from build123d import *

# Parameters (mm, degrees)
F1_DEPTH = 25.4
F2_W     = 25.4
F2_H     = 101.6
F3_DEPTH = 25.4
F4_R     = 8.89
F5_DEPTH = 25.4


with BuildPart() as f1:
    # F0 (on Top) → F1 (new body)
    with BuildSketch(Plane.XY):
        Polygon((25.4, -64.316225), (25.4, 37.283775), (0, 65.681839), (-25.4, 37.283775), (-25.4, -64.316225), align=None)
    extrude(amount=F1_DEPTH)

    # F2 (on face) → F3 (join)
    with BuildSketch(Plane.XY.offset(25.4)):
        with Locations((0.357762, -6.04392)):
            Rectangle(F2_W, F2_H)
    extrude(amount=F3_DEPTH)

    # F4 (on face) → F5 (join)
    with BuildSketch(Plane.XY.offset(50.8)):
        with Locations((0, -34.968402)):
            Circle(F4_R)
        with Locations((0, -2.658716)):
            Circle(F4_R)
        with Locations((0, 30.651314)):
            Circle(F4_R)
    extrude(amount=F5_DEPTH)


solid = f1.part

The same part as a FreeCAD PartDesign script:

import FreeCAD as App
import Part
import Sketcher
Q = App.Units.Quantity

doc = App.newDocument("Part")
body = doc.addObject("PartDesign::Body", "Body")

sketch1 = body.newObject("Sketcher::SketchObject", "Sketch")
sketch1.AttachmentSupport = (doc.getObject("XY_Plane"), [""])
sketch1.MapMode = "FlatFace"
sketch1.addGeometry(Part.LineSegment(App.Vector(25, -64, 0), App.Vector(25, 37, 0)), False)
sketch1.addGeometry(Part.LineSegment(App.Vector(25, 37, 0), App.Vector(0, 66, 0)), False)
sketch1.addGeometry(Part.LineSegment(App.Vector(0, 66, 0), App.Vector(-25, 37, 0)), False)
sketch1.addGeometry(Part.LineSegment(App.Vector(-25, 37, 0), App.Vector(-25, -64, 0)), False)
sketch1.addGeometry(Part.LineSegment(App.Vector(-25, -64, 0), App.Vector(25, -64, 0)), False)
sketch1.addConstraint(Sketcher.Constraint("Coincident", 0, 2, 1, 1))
sketch1.addConstraint(Sketcher.Constraint("Coincident", 1, 2, 2, 1))
sketch1.addConstraint(Sketcher.Constraint("Coincident", 2, 2, 3, 1))
sketch1.addConstraint(Sketcher.Constraint("Coincident", 3, 2, 4, 1))
sketch1.addConstraint(Sketcher.Constraint("Coincident", 4, 2, 0, 1))
sketch1.addConstraint(Sketcher.Constraint("Vertical", 0))
sketch1.addConstraint(Sketcher.Constraint("Vertical", 3))
sketch1.addConstraint(Sketcher.Constraint("Horizontal", 4))
sketch1.addConstraint(Sketcher.Constraint("Symmetric", 0, 2, 2, 2, -2))
sketch1.addConstraint(Sketcher.Constraint("PointOnObject", 1, 2, -2))
sketch1.addConstraint(Sketcher.Constraint("DistanceX", 4, 1, 4, 2, Q("2 in")))
sketch1.addConstraint(Sketcher.Constraint("DistanceY", 0, 1, 0, 2, Q("4 in")))
sketch1.addConstraint(Sketcher.Constraint("Distance", 1, Q("1.5 in")))
sketch1.addConstraint(Sketcher.Constraint("DistanceY", -1, 1, 1, 2, Q("65.681839 mm")))
pad1 = body.newObject("PartDesign::Pad", "Pad")
pad1.Profile = sketch1
pad1.Length = Q("1 in")

sketch2 = body.newObject("Sketcher::SketchObject", "Sketch001")
sketch2.AttachmentSupport = (doc.getObject("XY_Plane"), [""])
sketch2.MapMode = "FlatFace"
sketch2.AttachmentOffset = App.Placement(App.Vector(0, 0, 1 * 25.4), App.Rotation())
sketch2.addGeometry(Part.LineSegment(App.Vector(-12, 45, 0), App.Vector(-12, -57, 0)), False)
sketch2.addGeometry(Part.LineSegment(App.Vector(-12, -57, 0), App.Vector(13, -57, 0)), False)
sketch2.addGeometry(Part.LineSegment(App.Vector(13, -57, 0), App.Vector(13, 45, 0)), False)
sketch2.addGeometry(Part.LineSegment(App.Vector(13, 45, 0), App.Vector(-12, 45, 0)), False)
sketch2.addConstraint(Sketcher.Constraint("Coincident", 0, 2, 1, 1))
sketch2.addConstraint(Sketcher.Constraint("Coincident", 1, 2, 2, 1))
sketch2.addConstraint(Sketcher.Constraint("Coincident", 2, 2, 3, 1))
sketch2.addConstraint(Sketcher.Constraint("Coincident", 3, 2, 0, 1))
sketch2.addConstraint(Sketcher.Constraint("Vertical", 0))
sketch2.addConstraint(Sketcher.Constraint("Horizontal", 1))
sketch2.addConstraint(Sketcher.Constraint("Vertical", 2))
sketch2.addConstraint(Sketcher.Constraint("Horizontal", 3))
sketch2.addConstraint(Sketcher.Constraint("DistanceX", 1, 1, 1, 2, Q("1 in")))
sketch2.addConstraint(Sketcher.Constraint("DistanceY", 0, 2, 0, 1, Q("4 in")))
sketch2.addConstraint(Sketcher.Constraint("DistanceY", 0, 2, -1, 1, Q("56.84392 mm")))
sketch2.addConstraint(Sketcher.Constraint("DistanceX", 0, 2, -1, 1, Q("12.342238 mm")))
pad2 = body.newObject("PartDesign::Pad", "Pad001")
pad2.Profile = sketch2
pad2.Length = Q("1 in")

sketch3 = body.newObject("Sketcher::SketchObject", "Sketch002")
sketch3.AttachmentSupport = (doc.getObject("XY_Plane"), [""])
sketch3.MapMode = "FlatFace"
sketch3.AttachmentOffset = App.Placement(App.Vector(0, 0, 2 * 25.4), App.Rotation())
sketch3.addGeometry(Part.Circle(App.Vector(0, -35, 0), App.Vector(0, 0, 1), 9), False)
sketch3.addGeometry(Part.Circle(App.Vector(0, -3, 0), App.Vector(0, 0, 1), 9), False)
sketch3.addGeometry(Part.Circle(App.Vector(0, 31, 0), App.Vector(0, 0, 1), 9), False)
sketch3.addConstraint(Sketcher.Constraint("Equal", 0, 1))
sketch3.addConstraint(Sketcher.Constraint("Equal", 1, 2))
sketch3.addConstraint(Sketcher.Constraint("PointOnObject", 0, 3, -2))
sketch3.addConstraint(Sketcher.Constraint("PointOnObject", 1, 3, -2))
sketch3.addConstraint(Sketcher.Constraint("PointOnObject", 2, 3, -2))
sketch3.addConstraint(Sketcher.Constraint("Diameter", 0, Q("0.7 in")))
sketch3.addConstraint(Sketcher.Constraint("DistanceY", 0, 3, -1, 1, Q("34.968402 mm")))
sketch3.addConstraint(Sketcher.Constraint("DistanceY", 1, 3, 2, 3, Q("33.31003 mm")))
sketch3.addConstraint(Sketcher.Constraint("DistanceY", 1, 3, -1, 1, Q("2.658716 mm")))
pad3 = body.newObject("PartDesign::Pad", "Pad002")
pad3.Profile = sketch3
pad3.Length = Q("1 in")

doc.recompute()
